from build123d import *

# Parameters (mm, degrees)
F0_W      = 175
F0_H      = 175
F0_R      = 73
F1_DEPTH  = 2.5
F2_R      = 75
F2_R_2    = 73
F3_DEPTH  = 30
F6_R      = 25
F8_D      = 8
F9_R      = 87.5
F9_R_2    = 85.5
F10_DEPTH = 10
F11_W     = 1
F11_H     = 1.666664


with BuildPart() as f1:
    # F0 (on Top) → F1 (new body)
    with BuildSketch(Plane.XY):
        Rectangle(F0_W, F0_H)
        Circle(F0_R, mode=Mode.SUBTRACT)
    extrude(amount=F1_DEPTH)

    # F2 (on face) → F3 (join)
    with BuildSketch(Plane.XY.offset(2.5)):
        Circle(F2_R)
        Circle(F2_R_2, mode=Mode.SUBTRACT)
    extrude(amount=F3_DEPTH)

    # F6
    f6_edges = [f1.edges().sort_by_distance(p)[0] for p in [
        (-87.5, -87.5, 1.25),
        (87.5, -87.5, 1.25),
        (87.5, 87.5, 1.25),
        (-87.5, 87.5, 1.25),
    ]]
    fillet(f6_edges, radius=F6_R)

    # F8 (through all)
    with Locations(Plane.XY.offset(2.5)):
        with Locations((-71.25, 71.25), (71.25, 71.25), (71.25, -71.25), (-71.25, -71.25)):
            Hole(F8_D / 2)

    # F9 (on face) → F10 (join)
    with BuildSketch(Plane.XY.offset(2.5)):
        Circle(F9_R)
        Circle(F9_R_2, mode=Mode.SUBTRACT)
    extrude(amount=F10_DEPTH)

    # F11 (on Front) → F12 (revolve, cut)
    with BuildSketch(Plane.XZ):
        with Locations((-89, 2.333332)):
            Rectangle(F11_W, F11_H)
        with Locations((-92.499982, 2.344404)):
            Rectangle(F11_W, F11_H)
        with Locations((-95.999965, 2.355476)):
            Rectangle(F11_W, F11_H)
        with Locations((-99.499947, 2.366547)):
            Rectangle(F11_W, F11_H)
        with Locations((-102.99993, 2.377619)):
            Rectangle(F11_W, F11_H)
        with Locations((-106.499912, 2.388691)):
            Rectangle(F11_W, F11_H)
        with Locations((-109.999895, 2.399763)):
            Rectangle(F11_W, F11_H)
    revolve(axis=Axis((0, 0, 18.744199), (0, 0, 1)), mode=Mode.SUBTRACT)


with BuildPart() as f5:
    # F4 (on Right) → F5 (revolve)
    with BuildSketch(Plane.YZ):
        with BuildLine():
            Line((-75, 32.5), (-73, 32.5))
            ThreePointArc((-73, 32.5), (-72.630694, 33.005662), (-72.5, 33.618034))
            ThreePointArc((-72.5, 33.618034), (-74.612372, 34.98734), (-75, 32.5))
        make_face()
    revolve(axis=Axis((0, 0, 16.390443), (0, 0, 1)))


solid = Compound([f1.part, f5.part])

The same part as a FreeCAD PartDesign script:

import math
import FreeCAD as App
import Part
import Sketcher

V = App.Vector


def edges_at(feature, points):
    """Names of the edges that pass closest to the given points."""
    edges = feature.Shape.Edges
    near = lambda p: min(range(len(edges)), key=lambda i: edges[i].distToShape(Part.Vertex(*p))[0])
    return sorted({f"Edge{near(p) + 1}" for p in points})

doc = App.newDocument("Part")
body = doc.addObject("PartDesign::Body", "Body")

# Sketch on XY plane
sketch1 = doc.addObject("Sketcher::SketchObject", "Sketch")
body.addObject(sketch1)
sketch1.AttachmentSupport = (doc.XY_Plane, [""])
sketch1.MapMode = "FlatFace"
sketch1.addGeometry([
    Part.LineSegment(V(-88, 88, 0), V(-88, -88, 0)),  # 0
    Part.LineSegment(V(-88, -88, 0), V(88, -88, 0)),  # 1
    Part.LineSegment(V(88, -88, 0), V(88, 88, 0)),  # 2
    Part.LineSegment(V(88, 88, 0), V(-88, 88, 0)),  # 3
    Part.Circle(V(0, 0, 0), V(0, 0, 1), 73),  # 4
], False)
sketch1.addConstraint([
    Sketcher.Constraint("Coincident", 0, 2, 1, 1),
    Sketcher.Constraint("Coincident", 1, 2, 2, 1),
    Sketcher.Constraint("Coincident", 2, 2, 3, 1),
    Sketcher.Constraint("Coincident", 3, 2, 0, 1),
    Sketcher.Constraint("Vertical", 0),
    Sketcher.Constraint("Horizontal", 1),
    Sketcher.Constraint("Vertical", 2),
    Sketcher.Constraint("Horizontal", 3),
    Sketcher.Constraint("Coincident", 4, 3, -1, 1),
    Sketcher.Constraint("Symmetric", 0, 2, 2, 2, -1, 1),
    Sketcher.Constraint("Equal", 3, 0),
    Sketcher.Constraint("Diameter", 4, 146.0),
    Sketcher.Constraint("DistanceX", 1, 1, 1, 2, 175.0),
])
pad1 = doc.addObject("PartDesign::Pad", "Pad")
body.addObject(pad1)
pad1.Profile = sketch1
pad1.Length = 2.5

# Sketch on XY plane
sketch2 = doc.addObject("Sketcher::SketchObject", "Sketch001")
body.addObject(sketch2)
sketch2.AttachmentSupport = (doc.XY_Plane, [""])
sketch2.MapMode = "FlatFace"
sketch2.AttachmentOffset = App.Placement(V(0, 0, 2.5), App.Rotation())
sketch2.addGeometry([
    Part.Circle(V(0, 0, 0), V(0, 0, 1), 75),
    Part.Circle(V(0, 0, 0), V(0, 0, 1), 73),
], False)
sketch2.addConstraint([
    Sketcher.Constraint("Coincident", 0, 3, -1, 1),
    Sketcher.Constraint("Coincident", 1, 3, -1, 1),
    Sketcher.Constraint("Diameter", 0, 150.0),
    Sketcher.Constraint("Diameter", 1, 146.0),
])
pad2 = doc.addObject("PartDesign::Pad", "Pad001")
body.addObject(pad2)
pad2.Profile = sketch2
pad2.Length = 30
doc.recompute()

fillet = doc.addObject("PartDesign::Fillet", "Fillet")
body.addObject(fillet)
fillet.Base = (pad2, edges_at(pad2, [
    (-87.5, -87.5, 1.25),
    (87.5, -87.5, 1.25),
    (87.5, 87.5, 1.25),
    (-87.5, 87.5, 1.25),
]))
fillet.Radius = 25

# Sketch on XY plane
sketch3 = doc.addObject("Sketcher::SketchObject", "Sketch002")
body.addObject(sketch3)
sketch3.AttachmentSupport = (doc.XY_Plane, [""])
sketch3.MapMode = "FlatFace"
sketch3.AttachmentOffset = App.Placement(V(0, 0, 2.5), App.Rotation())
sketch3.addGeometry([
    Part.Circle(V(-71.2, 71.2, 0), V(0, 0, 1), 4),
    Part.Circle(V(71.2, 71.2, 0), V(0, 0, 1), 4),
    Part.Circle(V(71.2, -71.2, 0), V(0, 0, 1), 4),
    Part.Circle(V(-71.2, -71.2, 0), V(0, 0, 1), 4),
], False)
sketch3.addConstraint([
    Sketcher.Constraint("Equal", 0, 1),
    Sketcher.Constraint("Equal", 1, 2),
    Sketcher.Constraint("Equal", 2, 3),
    Sketcher.Constraint("Symmetric", 0, 3, 2, 3, -1, 1),
    Sketcher.Constraint("Symmetric", 1, 3, 3, 3, -1, 1),
    Sketcher.Constraint("Symmetric", 0, 3, 1, 3, -2),
    Sketcher.Constraint("Diameter", 0, 8.0),
    Sketcher.Constraint("DistanceX", 0, 3, 1, 3, 142.5),
    Sketcher.Constraint("DistanceY", 2, 3, 1, 3, 142.5),
])
doc.recompute()
hole = doc.addObject("PartDesign::Hole", "Hole")
body.addObject(hole)
hole.Profile = sketch3
hole.ThreadType = "None"
hole.Diameter = 8
hole.DepthType = "ThroughAll"

# Sketch on XY plane
sketch4 = doc.addObject("Sketcher::SketchObject", "Sketch003")
body.addObject(sketch4)
sketch4.AttachmentSupport = (doc.XY_Plane, [""])
sketch4.MapMode = "FlatFace"
sketch4.AttachmentOffset = App.Placement(V(0, 0, 2.5), App.Rotation())
sketch4.addGeometry([
    Part.Circle(V(0, 0, 0), V(0, 0, 1), 88),
    Part.Circle(V(0, 0, 0), V(0, 0, 1), 86),
], False)
sketch4.addConstraint([
    Sketcher.Constraint("Coincident", 0, 3, -1, 1),
    Sketcher.Constraint("Coincident", 1, 3, -1, 1),
    Sketcher.Constraint("Diameter", 0, 175.0),
    Sketcher.Constraint("Diameter", 1, 171.0),
])
pad3 = doc.addObject("PartDesign::Pad", "Pad002")
body.addObject(pad3)
pad3.Profile = sketch4
pad3.Length = 10

# Sketch on XZ plane
sketch5 = doc.addObject("Sketcher::SketchObject", "Sketch004")
body.addObject(sketch5)
sketch5.AttachmentSupport = (doc.XZ_Plane, [""])
sketch5.MapMode = "FlatFace"
sketch5.addGeometry([
    Part.LineSegment(V(-89.5, 3.2, 0), V(-89.5, 1.5, 0)),  # 0
    Part.LineSegment(V(-89.5, 1.5, 0), V(-88.5, 1.5, 0)),  # 1
    Part.LineSegment(V(-88.5, 1.5, 0), V(-88.5, 3.2, 0)),  # 2
    Part.LineSegment(V(-88.5, 3.2, 0), V(-89.5, 3.2, 0)),  # 3
    Part.LineSegment(V(-93, 3.2, 0), V(-93, 1.5, 0)),  # 4
    Part.LineSegment(V(-93, 1.5, 0), V(-92, 1.5, 0)),  # 5
    Part.LineSegment(V(-92, 1.5, 0), V(-92, 3.2, 0)),  # 6
    Part.LineSegment(V(-92, 3.2, 0), V(-93, 3.2, 0)),  # 7
    Part.LineSegment(V(-96.5, 3.2, 0), V(-96.5, 1.5, 0)),  # 8
    Part.LineSegment(V(-96.5, 1.5, 0), V(-95.5, 1.5, 0)),  # 9
    Part.LineSegment(V(-95.5, 1.5, 0), V(-95.5, 3.2, 0)),  # 10
    Part.LineSegment(V(-95.5, 3.2, 0), V(-96.5, 3.2, 0)),  # 11
    Part.LineSegment(V(-100, 3.2, 0), V(-100, 1.5, 0)),  # 12
    Part.LineSegment(V(-100, 1.5, 0), V(-99, 1.5, 0)),  # 13
    Part.LineSegment(V(-99, 1.5, 0), V(-99, 3.2, 0)),  # 14
    Part.LineSegment(V(-99, 3.2, 0), V(-100, 3.2, 0)),  # 15
    Part.LineSegment(V(-103.5, 3.2, 0), V(-103.5, 1.5, 0)),  # 16
    Part.LineSegment(V(-103.5, 1.5, 0), V(-102.5, 1.5, 0)),  # 17
    Part.LineSegment(V(-102.5, 1.5, 0), V(-102.5, 3.2, 0)),  # 18
    Part.LineSegment(V(-102.5, 3.2, 0), V(-103.5, 3.2, 0)),  # 19
    Part.LineSegment(V(-107, 3.2, 0), V(-107, 1.6, 0)),  # 20
    Part.LineSegment(V(-107, 1.6, 0), V(-106, 1.6, 0)),  # 21
    Part.LineSegment(V(-106, 1.6, 0), V(-106, 3.2, 0)),  # 22
    Part.LineSegment(V(-106, 3.2, 0), V(-107, 3.2, 0)),  # 23
    Part.LineSegment(V(-110.5, 3.2, 0), V(-110.5, 1.6, 0)),  # 24
    Part.LineSegment(V(-110.5, 1.6, 0), V(-109.5, 1.6, 0)),  # 25
    Part.LineSegment(V(-109.5, 1.6, 0), V(-109.5, 3.2, 0)),  # 26
    Part.LineSegment(V(-109.5, 3.2, 0), V(-110.5, 3.2, 0)),  # 27
], False)
sketch5.addConstraint([
    Sketcher.Constraint("Coincident", 0, 2, 1, 1),
    Sketcher.Constraint("Coincident", 1, 2, 2, 1),
    Sketcher.Constraint("Coincident", 2, 2, 3, 1),
    Sketcher.Constraint("Coincident", 3, 2, 0, 1),
    Sketcher.Constraint("Coincident", 4, 2, 5, 1),
    Sketcher.Constraint("Coincident", 5, 2, 6, 1),
    Sketcher.Constraint("Coincident", 6, 2, 7, 1),
    Sketcher.Constraint("Coincident", 7, 2, 4, 1),
    Sketcher.Constraint("Coincident", 8, 2, 9, 1),
    Sketcher.Constraint("Coincident", 9, 2, 10, 1),
    Sketcher.Constraint("Coincident", 10, 2, 11, 1),
    Sketcher.Constraint("Coincident", 11, 2, 8, 1),
    Sketcher.Constraint("Coincident", 12, 2, 13, 1),
    Sketcher.Constraint("Coincident", 13, 2, 14, 1),
    Sketcher.Constraint("Coincident", 14, 2, 15, 1),
    Sketcher.Constraint("Coincident", 15, 2, 12, 1),
    Sketcher.Constraint("Coincident", 16, 2, 17, 1),
    Sketcher.Constraint("Coincident", 17, 2, 18, 1),
    Sketcher.Constraint("Coincident", 18, 2, 19, 1),
    Sketcher.Constraint("Coincident", 19, 2, 16, 1),
    Sketcher.Constraint("Coincident", 20, 2, 21, 1),
    Sketcher.Constraint("Coincident", 21, 2, 22, 1),
    Sketcher.Constraint("Coincident", 22, 2, 23, 1),
    Sketcher.Constraint("Coincident", 23, 2, 20, 1),
    Sketcher.Constraint("Coincident", 24, 2, 25, 1),
    Sketcher.Constraint("Coincident", 25, 2, 26, 1),
    Sketcher.Constraint("Coincident", 26, 2, 27, 1),
    Sketcher.Constraint("Coincident", 27, 2, 24, 1),
    Sketcher.Constraint("Vertical", 0),
    Sketcher.Constraint("Horizontal", 1),
    Sketcher.Constraint("Vertical", 2),
    Sketcher.Constraint("Horizontal", 3),
    Sketcher.Constraint("Vertical", 4),
    Sketcher.Constraint("Horizontal", 5),
    Sketcher.Constraint("Vertical", 6),
    Sketcher.Constraint("Horizontal", 7),
    Sketcher.Constraint("Vertical", 8),
    Sketcher.Constraint("Horizontal", 9),
    Sketcher.Constraint("Vertical", 10),
    Sketcher.Constraint("Horizontal", 11),
    Sketcher.Constraint("Vertical", 12),
    Sketcher.Constraint("Horizontal", 13),
    Sketcher.Constraint("Vertical", 14),
    Sketcher.Constraint("Horizontal", 15),
    Sketcher.Constraint("Vertical", 16),
    Sketcher.Constraint("Horizontal", 17),
    Sketcher.Constraint("Vertical", 18),
    Sketcher.Constraint("Horizontal", 19),
    Sketcher.Constraint("Vertical", 20),
    Sketcher.Constraint("Horizontal", 21),
    Sketcher.Constraint("Vertical", 22),
    Sketcher.Constraint("Horizontal", 23),
    Sketcher.Constraint("Vertical", 24),
    Sketcher.Constraint("Horizontal", 25),
    Sketcher.Constraint("Vertical", 26),
    Sketcher.Constraint("Horizontal", 27),
    Sketcher.Constraint("Equal", 3, 5),
    Sketcher.Constraint("Equal", 7, 9),
    Sketcher.Constraint("Equal", 11, 13),
    Sketcher.Constraint("Equal", 15, 17),
    Sketcher.Constraint("Equal", 19, 21),
    Sketcher.Constraint("Equal", 23, 25),
    Sketcher.Constraint("Equal", 2, 4),
    Sketcher.Constraint("Equal", 6, 8),
    Sketcher.Constraint("Equal", 10, 12),
    Sketcher.Constraint("Equal", 14, 16),
    Sketcher.Constraint("Equal", 18, 20),
    Sketcher.Constraint("Equal", 22, 24),
    Sketcher.Constraint("DistanceX", 1, 1, 1, 2, 1.0),
    Sketcher.Constraint("DistanceX", 0, 2, -1, 1, 89.5),
    Sketcher.Constraint("DistanceY", -1, 1, 0, 2, 1.5),
    Sketcher.Constraint("DistanceY", 0, 2, 0, 1, 1.666664),
    Sketcher.Constraint("DistanceY", -1, 1, 14, 2, 3.199879),
    Sketcher.Constraint("DistanceX", 16, 2, -1, 1, 103.49993),
    Sketcher.Constraint("DistanceY", -1, 1, 18, 2, 3.210951),
    Sketcher.Constraint("DistanceX", 20, 2, -1, 1, 106.999912),
    Sketcher.Constraint("DistanceY", -1, 1, 20, 2, 1.555359),
    Sketcher.Constraint("DistanceY", -1, 1, 24, 2, 1.566431),
    Sketcher.Constraint("DistanceY", 0, 2, 4, 2, 0.011072),
    Sketcher.Constraint("DistanceY", 4, 2, 8, 2, 0.011072),
    Sketcher.Constraint("DistanceX", 4, 2, -1, 1, 92.999982),
    Sketcher.Constraint("DistanceX", 8, 2, -1, 1, 96.499965),
    Sketcher.Constraint("DistanceX", 12, 2, -1, 1, 99.999947),
    Sketcher.Constraint("DistanceX", 24, 2, -1, 1, 110.499895),
])
groove = doc.addObject("PartDesign::Groove", "Groove")
body.addObject(groove)
groove.Profile = sketch5
groove.ReferenceAxis = (sketch5, ["V_Axis"])
groove.Angle = 360
body2 = doc.addObject("PartDesign::Body", "Body001")

# Sketch on YZ plane
sketch6 = doc.addObject("Sketcher::SketchObject", "Sketch005")
body2.addObject(sketch6)
sketch6.AttachmentSupport = (doc.getObject("YZ_Plane001"), [""])
sketch6.MapMode = "FlatFace"
sketch6.addGeometry([
    Part.LineSegment(V(-75, 32.5, 0), V(-73, 32.5, 0)),
    Part.ArcOfCircle(Part.Circle(V(-74, 33.6, 0), V(0, 0, 1), 1.5), math.radians(-48), math.radians(0)),
    Part.ArcOfCircle(Part.Circle(V(-74, 33.6, 0), V(0, 0, 1), 1.5), math.radians(0), math.radians(228)),
], False)
sketch6.addConstraint([
    Sketcher.Constraint("Coincident", 0, 2, 1, 1),
    Sketcher.Constraint("Tangent", 1, 2, 2, 1),
    Sketcher.Constraint("Coincident", 2, 2, 0, 1),
    Sketcher.Constraint("Horizontal", 0),
    Sketcher.Constraint("Horizontal", 2, 3, 1, 2),
    Sketcher.Constraint("Radius", 2, 1.5),
    Sketcher.Constraint("DistanceX", 0, 1, 0, 2, 2.0),
    Sketcher.Constraint("DistanceX", 2, 3, -1, 1, 74.0),
    Sketcher.Constraint("DistanceX", 0, 2, -1, 1, 73.0),
    Sketcher.Constraint("DistanceY", -1, 1, 0, 2, 32.5),
])
revolution = doc.addObject("PartDesign::Revolution", "Revolution")
body2.addObject(revolution)
revolution.Profile = sketch6
revolution.ReferenceAxis = (sketch6, ["V_Axis"])
revolution.Angle = 360

doc.recompute()
